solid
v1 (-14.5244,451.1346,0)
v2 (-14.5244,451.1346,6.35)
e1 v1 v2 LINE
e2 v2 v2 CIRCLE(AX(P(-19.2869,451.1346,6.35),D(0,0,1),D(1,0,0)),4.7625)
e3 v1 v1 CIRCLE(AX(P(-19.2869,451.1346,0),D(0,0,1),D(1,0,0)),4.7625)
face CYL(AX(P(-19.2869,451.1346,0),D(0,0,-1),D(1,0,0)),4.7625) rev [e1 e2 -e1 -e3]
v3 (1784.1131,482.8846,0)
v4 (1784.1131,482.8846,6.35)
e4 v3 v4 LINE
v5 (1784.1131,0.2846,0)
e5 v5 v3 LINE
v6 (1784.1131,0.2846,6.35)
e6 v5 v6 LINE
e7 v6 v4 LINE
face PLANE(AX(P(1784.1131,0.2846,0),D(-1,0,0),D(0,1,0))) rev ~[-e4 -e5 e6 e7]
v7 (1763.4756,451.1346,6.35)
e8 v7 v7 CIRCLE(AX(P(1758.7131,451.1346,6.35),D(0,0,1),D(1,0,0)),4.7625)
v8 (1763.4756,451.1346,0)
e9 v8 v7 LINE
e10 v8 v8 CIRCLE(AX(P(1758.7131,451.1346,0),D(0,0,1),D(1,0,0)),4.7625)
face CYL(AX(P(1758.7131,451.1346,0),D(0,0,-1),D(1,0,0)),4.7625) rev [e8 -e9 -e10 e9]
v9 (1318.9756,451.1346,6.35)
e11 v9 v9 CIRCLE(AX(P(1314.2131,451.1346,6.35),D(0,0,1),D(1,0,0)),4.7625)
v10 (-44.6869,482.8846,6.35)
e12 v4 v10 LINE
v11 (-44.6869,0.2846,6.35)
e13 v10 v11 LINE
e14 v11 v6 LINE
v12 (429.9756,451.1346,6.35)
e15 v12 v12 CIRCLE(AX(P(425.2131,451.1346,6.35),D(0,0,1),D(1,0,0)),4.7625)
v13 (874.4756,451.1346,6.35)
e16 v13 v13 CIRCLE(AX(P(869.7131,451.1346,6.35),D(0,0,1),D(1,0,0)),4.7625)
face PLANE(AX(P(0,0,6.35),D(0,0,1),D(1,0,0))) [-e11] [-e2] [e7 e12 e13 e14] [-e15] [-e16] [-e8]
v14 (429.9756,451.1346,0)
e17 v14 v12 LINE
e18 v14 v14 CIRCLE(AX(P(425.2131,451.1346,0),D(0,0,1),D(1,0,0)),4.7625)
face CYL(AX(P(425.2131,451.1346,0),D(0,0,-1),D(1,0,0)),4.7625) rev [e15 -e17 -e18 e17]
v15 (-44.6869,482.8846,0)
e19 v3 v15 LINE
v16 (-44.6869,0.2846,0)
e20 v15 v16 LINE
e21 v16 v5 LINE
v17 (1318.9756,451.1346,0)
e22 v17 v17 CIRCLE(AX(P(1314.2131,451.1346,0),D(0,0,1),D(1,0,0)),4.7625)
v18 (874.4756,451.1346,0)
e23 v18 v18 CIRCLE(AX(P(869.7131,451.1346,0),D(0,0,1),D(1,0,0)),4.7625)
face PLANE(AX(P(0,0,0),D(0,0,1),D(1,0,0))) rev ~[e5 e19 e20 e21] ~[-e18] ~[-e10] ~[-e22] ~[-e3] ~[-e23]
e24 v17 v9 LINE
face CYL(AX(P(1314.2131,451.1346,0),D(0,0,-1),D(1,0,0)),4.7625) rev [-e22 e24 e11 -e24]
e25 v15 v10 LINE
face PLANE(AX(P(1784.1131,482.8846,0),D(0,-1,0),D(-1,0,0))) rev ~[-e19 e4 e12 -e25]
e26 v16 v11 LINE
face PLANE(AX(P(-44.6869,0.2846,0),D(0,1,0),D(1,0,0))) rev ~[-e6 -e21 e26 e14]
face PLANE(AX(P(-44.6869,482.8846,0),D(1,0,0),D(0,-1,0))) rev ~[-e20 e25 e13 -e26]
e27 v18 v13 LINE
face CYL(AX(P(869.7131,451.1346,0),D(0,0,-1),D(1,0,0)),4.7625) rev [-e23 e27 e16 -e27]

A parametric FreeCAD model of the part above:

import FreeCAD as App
import Part
import Sketcher
Q = App.Units.Quantity


def add_polygon(sketch, points):
    """Adds a closed chain of lines whose ends are joined by coincident constraints."""
    first, n = sketch.GeometryCount, len(points)
    for a, b in zip(points, points[1:] + points[:1]):
        sketch.addGeometry(Part.LineSegment(App.Vector(*a, 0), App.Vector(*b, 0)), False)
    for i in range(n):
        sketch.addConstraint(Sketcher.Constraint("Coincident", first + i, 2, first + (i + 1) % n, 1))

doc = App.newDocument("Part")
body = doc.addObject("PartDesign::Body", "Body")

# Sketch on XY plane
sketch1 = doc.addObject("Sketcher::SketchObject", "Sketch")
body.addObject(sketch1)
sketch1.AttachmentSupport = (doc.XY_Plane, [""])
sketch1.MapMode = "FlatFace"
add_polygon(sketch1, [(-44.7, 482.9), (-44.7, 0.3), (1784.1, 0.3), (1784.1, 482.9)])  # lines 0-3
sketch1.addGeometry(Part.Circle(App.Vector(-19.3, 451.1, 0), App.Vector(0, 0, 1), 4.8), False)  # 4
sketch1.addGeometry(Part.Circle(App.Vector(425.2, 451.1, 0), App.Vector(0, 0, 1), 4.8), False)  # 5
sketch1.addGeometry(Part.Circle(App.Vector(869.7, 451.1, 0), App.Vector(0, 0, 1), 4.8), False)  # 6
sketch1.addGeometry(Part.Circle(App.Vector(1314.2, 451.1, 0), App.Vector(0, 0, 1), 4.8), False)  # 7
sketch1.addGeometry(Part.Circle(App.Vector(1758.7, 451.1, 0), App.Vector(0, 0, 1), 4.8), False)  # 8
sketch1.addConstraint([
    Sketcher.Constraint("Vertical", 0),
    Sketcher.Constraint("Horizontal", 1),
    Sketcher.Constraint("Vertical", 2),
    Sketcher.Constraint("Horizontal", 3),
    Sketcher.Constraint("Equal", 4, 5),
    Sketcher.Constraint("Equal", 5, 6),
    Sketcher.Constraint("Equal", 6, 7),
    Sketcher.Constraint("Equal", 7, 8),
    Sketcher.Constraint("Horizontal", 4, 3, 5, 3),
    Sketcher.Constraint("Horizontal", 5, 3, 6, 3),
    Sketcher.Constraint("Horizontal", 6, 3, 7, 3),
    Sketcher.Constraint("Horizontal", 7, 3, 8, 3),
    Sketcher.Constraint("DistanceX", 1, 1, 1, 2, Q("72 in")),
    Sketcher.Constraint("DistanceY", 0, 2, 0, 1, Q("19 in")),
    Sketcher.Constraint("Diameter", 4, Q("0.375 in")),
    Sketcher.Constraint("DistanceX", 0, 2, 4, 3, Q("1 in")),
    Sketcher.Constraint("DistanceX", 0, 2, 6, 3, Q("36 in")),
    Sketcher.Constraint("DistanceX", 0, 2, 8, 3, Q("71 in")),
    Sketcher.Constraint("DistanceX", 0, 2, 5, 3, Q("18.5 in")),
    Sketcher.Constraint("DistanceX", 0, 2, 7, 3, Q("53.5 in")),
    Sketcher.Constraint("DistanceY", 8, 3, 2, 2, Q("1.25 in")),
    Sketcher.Constraint("DistanceY", -1, 1, 4, 3, Q("17.7612 in")),
    Sketcher.Constraint("DistanceX", 4, 3, -1, 1, 19.287),
])
pad1 = doc.addObject("PartDesign::Pad", "Pad")
body.addObject(pad1)
pad1.Profile = sketch1
pad1.Length = Q("0.25 in")

doc.recompute()
